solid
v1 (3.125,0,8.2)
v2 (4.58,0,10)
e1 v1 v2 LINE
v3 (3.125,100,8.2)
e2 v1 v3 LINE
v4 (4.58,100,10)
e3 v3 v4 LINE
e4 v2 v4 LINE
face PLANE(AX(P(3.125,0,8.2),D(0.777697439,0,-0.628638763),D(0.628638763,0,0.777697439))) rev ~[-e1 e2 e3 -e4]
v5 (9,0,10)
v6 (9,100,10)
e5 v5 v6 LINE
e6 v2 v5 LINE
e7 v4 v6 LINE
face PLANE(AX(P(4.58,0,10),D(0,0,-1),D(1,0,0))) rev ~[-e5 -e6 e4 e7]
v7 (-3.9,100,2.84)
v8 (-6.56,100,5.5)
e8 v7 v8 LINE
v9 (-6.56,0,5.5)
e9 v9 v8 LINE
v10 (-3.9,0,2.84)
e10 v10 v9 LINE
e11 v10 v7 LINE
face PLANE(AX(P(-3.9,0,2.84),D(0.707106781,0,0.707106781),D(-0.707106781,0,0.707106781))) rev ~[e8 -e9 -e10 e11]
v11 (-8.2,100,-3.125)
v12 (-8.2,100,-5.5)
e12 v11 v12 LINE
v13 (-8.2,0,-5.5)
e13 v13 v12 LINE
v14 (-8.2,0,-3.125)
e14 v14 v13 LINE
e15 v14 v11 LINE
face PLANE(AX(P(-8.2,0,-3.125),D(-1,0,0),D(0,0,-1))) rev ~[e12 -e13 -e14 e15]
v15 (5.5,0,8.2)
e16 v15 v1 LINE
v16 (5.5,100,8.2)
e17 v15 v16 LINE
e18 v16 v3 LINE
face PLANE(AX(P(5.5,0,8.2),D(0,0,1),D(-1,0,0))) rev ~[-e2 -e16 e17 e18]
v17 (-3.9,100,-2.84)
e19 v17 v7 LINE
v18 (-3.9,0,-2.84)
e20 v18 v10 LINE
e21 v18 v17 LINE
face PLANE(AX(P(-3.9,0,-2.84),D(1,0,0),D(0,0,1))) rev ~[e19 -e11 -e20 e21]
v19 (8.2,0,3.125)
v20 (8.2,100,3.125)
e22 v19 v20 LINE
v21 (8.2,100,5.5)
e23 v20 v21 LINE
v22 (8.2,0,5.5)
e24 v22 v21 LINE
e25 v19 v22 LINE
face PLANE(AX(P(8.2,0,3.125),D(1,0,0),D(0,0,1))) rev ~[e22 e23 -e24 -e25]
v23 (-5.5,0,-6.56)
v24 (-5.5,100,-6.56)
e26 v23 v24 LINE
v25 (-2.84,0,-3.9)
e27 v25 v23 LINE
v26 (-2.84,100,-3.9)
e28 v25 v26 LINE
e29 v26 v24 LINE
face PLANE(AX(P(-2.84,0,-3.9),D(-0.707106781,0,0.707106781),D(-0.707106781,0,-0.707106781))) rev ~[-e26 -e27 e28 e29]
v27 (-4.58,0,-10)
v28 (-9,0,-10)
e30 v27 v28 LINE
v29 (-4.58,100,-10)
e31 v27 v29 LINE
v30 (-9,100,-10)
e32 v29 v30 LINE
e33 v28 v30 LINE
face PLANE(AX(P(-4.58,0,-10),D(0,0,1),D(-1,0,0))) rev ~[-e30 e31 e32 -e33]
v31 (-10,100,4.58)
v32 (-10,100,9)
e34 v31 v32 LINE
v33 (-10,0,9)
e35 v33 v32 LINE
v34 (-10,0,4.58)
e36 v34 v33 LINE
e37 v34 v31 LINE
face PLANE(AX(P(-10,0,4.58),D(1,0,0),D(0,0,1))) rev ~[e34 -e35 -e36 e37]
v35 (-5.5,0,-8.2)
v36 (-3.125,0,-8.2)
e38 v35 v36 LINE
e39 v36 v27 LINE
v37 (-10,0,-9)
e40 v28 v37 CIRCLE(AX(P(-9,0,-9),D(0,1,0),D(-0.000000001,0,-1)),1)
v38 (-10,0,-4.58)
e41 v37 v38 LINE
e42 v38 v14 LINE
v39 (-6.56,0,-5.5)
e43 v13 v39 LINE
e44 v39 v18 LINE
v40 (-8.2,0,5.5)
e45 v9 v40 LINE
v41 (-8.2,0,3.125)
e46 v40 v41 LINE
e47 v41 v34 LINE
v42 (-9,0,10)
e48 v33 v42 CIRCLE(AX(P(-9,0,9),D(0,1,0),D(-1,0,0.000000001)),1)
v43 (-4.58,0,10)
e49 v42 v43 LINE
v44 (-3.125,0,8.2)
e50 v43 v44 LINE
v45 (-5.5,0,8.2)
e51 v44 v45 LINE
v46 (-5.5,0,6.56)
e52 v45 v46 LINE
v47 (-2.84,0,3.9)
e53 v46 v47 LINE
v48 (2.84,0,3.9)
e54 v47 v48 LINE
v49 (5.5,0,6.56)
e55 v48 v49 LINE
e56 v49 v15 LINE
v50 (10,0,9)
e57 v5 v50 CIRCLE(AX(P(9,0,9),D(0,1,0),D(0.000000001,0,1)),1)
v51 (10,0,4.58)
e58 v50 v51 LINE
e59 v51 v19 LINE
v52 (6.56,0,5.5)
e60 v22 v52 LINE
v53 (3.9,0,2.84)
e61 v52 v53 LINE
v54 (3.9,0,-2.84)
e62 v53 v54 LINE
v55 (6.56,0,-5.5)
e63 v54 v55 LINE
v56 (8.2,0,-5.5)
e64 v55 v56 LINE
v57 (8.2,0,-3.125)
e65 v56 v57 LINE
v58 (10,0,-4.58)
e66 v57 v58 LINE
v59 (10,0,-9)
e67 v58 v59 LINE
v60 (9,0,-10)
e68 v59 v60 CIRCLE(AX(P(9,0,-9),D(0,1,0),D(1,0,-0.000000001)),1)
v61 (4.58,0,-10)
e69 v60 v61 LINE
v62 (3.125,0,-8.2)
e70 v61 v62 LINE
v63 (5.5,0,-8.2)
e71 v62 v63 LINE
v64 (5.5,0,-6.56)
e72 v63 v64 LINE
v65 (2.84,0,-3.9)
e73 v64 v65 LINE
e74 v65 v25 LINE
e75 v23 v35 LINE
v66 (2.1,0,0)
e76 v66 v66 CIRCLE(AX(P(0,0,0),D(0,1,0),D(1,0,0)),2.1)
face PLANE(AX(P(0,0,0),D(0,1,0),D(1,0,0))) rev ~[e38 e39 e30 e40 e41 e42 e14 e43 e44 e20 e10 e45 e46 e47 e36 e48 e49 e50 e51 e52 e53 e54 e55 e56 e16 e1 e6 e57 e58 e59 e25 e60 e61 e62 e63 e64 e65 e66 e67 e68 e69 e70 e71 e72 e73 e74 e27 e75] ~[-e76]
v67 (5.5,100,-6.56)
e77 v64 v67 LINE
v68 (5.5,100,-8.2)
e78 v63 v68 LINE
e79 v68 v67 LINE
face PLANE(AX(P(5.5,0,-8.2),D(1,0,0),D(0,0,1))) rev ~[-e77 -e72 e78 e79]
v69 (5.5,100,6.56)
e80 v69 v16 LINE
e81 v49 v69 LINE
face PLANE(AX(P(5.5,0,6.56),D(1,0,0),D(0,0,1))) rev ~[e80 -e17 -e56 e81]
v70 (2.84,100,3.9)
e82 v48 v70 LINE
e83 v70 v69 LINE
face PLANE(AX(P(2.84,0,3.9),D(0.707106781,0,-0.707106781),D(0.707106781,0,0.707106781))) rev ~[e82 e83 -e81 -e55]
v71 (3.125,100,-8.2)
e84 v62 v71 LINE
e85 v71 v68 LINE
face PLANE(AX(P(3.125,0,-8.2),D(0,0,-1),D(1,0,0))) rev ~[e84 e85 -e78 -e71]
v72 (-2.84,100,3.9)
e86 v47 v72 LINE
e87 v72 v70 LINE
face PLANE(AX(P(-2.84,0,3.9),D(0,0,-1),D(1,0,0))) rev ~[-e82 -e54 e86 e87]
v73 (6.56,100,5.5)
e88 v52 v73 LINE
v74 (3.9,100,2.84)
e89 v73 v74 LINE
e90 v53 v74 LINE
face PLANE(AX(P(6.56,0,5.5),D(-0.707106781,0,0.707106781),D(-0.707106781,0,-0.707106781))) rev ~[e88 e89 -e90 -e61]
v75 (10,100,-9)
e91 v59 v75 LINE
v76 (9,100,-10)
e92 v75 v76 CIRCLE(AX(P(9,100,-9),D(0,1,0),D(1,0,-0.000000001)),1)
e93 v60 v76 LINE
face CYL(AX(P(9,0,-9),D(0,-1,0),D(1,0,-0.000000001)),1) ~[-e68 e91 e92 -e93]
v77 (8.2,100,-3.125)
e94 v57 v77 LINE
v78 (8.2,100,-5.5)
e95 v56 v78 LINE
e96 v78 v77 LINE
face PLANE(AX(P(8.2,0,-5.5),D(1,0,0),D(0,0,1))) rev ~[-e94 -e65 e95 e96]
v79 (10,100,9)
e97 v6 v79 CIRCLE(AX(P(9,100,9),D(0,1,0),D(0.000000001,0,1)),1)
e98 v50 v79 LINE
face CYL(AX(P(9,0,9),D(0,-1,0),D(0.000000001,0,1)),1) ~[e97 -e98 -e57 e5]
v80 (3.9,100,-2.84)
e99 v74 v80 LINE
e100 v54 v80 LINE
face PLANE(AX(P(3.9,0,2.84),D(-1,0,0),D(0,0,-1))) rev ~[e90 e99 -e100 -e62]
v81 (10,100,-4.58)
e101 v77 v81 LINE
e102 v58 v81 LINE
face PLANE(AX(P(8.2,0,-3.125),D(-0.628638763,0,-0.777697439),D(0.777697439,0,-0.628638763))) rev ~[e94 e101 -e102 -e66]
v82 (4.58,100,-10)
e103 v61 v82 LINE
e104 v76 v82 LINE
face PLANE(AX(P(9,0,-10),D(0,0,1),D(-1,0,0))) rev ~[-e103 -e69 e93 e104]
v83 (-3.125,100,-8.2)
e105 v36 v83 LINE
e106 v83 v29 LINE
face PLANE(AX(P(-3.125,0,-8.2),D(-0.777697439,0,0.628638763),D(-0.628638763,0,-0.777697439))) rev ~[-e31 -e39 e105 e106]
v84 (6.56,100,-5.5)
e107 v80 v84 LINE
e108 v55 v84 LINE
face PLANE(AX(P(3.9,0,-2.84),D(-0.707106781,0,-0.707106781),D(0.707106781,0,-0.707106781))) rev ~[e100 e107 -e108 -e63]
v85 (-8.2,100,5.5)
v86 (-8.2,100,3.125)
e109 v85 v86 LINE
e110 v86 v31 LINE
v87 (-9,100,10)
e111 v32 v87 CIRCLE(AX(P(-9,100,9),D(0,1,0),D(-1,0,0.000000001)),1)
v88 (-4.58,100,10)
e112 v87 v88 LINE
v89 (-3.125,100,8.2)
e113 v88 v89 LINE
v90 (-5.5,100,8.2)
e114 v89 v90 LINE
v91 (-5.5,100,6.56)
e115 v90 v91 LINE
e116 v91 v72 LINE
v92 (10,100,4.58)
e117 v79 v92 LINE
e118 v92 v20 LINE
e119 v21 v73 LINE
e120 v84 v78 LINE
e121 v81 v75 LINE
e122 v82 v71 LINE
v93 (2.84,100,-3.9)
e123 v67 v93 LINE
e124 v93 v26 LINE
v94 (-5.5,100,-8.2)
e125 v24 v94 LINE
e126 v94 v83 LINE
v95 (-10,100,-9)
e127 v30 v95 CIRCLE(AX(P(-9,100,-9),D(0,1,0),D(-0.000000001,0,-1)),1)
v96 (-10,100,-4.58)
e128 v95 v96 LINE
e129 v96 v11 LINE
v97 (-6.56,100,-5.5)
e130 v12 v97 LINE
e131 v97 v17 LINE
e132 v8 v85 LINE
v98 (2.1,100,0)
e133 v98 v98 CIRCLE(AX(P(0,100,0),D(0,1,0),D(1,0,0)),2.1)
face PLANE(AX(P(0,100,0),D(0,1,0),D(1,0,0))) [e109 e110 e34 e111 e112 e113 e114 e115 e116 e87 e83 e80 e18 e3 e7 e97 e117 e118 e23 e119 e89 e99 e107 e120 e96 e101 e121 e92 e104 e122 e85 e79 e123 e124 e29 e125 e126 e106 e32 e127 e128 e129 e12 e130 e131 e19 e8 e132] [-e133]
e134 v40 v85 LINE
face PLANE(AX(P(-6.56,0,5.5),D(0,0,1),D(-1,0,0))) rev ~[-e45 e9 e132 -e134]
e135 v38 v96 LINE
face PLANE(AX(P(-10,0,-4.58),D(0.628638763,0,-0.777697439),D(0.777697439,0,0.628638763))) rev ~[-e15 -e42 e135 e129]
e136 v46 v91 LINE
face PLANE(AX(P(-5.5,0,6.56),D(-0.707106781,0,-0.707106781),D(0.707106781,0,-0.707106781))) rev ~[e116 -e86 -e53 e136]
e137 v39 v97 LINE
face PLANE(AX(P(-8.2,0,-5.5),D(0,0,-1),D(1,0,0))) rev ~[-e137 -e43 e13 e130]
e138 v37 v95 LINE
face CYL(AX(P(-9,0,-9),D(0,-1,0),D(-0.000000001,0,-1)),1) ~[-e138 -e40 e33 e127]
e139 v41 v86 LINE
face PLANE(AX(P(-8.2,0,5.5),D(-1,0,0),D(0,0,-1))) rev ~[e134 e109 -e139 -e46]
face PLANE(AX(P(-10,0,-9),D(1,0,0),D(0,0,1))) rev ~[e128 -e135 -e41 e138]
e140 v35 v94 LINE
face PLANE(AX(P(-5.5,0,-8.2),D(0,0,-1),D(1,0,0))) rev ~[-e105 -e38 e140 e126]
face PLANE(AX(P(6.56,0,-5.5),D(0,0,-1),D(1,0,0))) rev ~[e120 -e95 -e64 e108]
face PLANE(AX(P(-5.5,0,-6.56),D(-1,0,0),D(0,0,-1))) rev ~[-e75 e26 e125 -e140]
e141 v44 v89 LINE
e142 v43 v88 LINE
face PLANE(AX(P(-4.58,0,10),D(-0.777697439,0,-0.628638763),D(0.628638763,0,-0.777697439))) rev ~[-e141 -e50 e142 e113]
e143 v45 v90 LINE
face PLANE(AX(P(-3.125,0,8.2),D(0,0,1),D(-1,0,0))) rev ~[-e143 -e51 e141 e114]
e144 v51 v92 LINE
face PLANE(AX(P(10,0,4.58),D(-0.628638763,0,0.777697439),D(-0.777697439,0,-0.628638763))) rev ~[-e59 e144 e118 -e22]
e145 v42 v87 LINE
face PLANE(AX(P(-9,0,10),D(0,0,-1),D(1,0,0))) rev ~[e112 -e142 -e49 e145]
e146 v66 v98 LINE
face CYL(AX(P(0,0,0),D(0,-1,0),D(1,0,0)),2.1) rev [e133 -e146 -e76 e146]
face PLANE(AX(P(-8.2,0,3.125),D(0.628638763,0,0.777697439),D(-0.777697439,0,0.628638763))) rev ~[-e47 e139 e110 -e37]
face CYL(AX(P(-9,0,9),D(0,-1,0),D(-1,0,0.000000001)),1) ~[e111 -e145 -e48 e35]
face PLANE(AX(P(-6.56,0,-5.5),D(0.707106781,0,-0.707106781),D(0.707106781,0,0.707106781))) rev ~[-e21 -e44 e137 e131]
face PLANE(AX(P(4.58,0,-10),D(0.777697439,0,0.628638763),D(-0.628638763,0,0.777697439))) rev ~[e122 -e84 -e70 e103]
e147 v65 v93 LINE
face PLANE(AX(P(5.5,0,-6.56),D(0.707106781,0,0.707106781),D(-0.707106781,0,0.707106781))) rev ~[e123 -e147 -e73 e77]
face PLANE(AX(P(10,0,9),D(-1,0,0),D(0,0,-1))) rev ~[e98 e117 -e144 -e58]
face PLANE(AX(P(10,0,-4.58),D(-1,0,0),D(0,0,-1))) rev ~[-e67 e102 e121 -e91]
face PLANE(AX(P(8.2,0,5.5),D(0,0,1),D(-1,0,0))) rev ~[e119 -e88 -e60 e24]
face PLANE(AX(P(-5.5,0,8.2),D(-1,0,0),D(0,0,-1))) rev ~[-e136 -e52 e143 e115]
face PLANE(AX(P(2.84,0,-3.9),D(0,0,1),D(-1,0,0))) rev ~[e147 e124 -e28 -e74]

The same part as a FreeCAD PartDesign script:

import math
import FreeCAD as App
import Part
import Sketcher
from FreeCAD import Vector

doc = App.newDocument("Part")
body = doc.addObject("PartDesign::Body", "Body")

sketch1 = body.newObject("Sketcher::SketchObject", "Sketch")
sketch1.AttachmentSupport = (doc.getObject("XZ_Plane"), [""])
sketch1.MapMode = "FlatFace"
sketch1.addGeometry(Part.LineSegment(Vector(-5.5, -8.2, 0), Vector(-3.125, -8.2, 0)), False)
sketch1.addGeometry(Part.LineSegment(Vector(-3.125, -8.2, 0), Vector(-4.58, -10, 0)), False)
sketch1.addGeometry(Part.LineSegment(Vector(-4.58, -10, 0), Vector(-9, -10, 0)), False)
sketch1.addGeometry(Part.ArcOfCircle(Part.Circle(Vector(-9, -9, 0), Vector(0, 0, 1), 1), math.radians(-180), math.radians(-90)), False)
sketch1.addGeometry(Part.LineSegment(Vector(-10, -9, 0), Vector(-10, -4.58, 0)), False)
sketch1.addGeometry(Part.LineSegment(Vector(-10, -4.58, 0), Vector(-8.2, -3.125, 0)), False)
sketch1.addGeometry(Part.LineSegment(Vector(-8.2, -3.125, 0), Vector(-8.2, -5.5, 0)), False)
sketch1.addGeometry(Part.LineSegment(Vector(-8.2, -5.5, 0), Vector(-6.56, -5.5, 0)), False)
sketch1.addGeometry(Part.LineSegment(Vector(-6.56, -5.5, 0), Vector(-3.9, -2.84, 0)), False)
sketch1.addGeometry(Part.LineSegment(Vector(-3.9, -2.84, 0), Vector(-3.9, 2.84, 0)), False)
sketch1.addGeometry(Part.LineSegment(Vector(-3.9, 2.84, 0), Vector(-6.56, 5.5, 0)), False)
sketch1.addGeometry(Part.LineSegment(Vector(-6.56, 5.5, 0), Vector(-8.2, 5.5, 0)), False)
sketch1.addGeometry(Part.LineSegment(Vector(-8.2, 5.5, 0), Vector(-8.2, 3.125, 0)), False)
sketch1.addGeometry(Part.LineSegment(Vector(-8.2, 3.125, 0), Vector(-10, 4.58, 0)), False)
sketch1.addGeometry(Part.LineSegment(Vector(-10, 4.58, 0), Vector(-10, 9, 0)), False)
sketch1.addGeometry(Part.ArcOfCircle(Part.Circle(Vector(-9, 9, 0), Vector(0, 0, 1), 1), math.radians(90), math.radians(180)), False)
sketch1.addGeometry(Part.LineSegment(Vector(-9, 10, 0), Vector(-4.58, 10, 0)), False)
sketch1.addGeometry(Part.LineSegment(Vector(-4.58, 10, 0), Vector(-3.125, 8.2, 0)), False)
sketch1.addGeometry(Part.LineSegment(Vector(-3.125, 8.2, 0), Vector(-5.5, 8.2, 0)), False)
sketch1.addGeometry(Part.LineSegment(Vector(-5.5, 8.2, 0), Vector(-5.5, 6.56, 0)), False)
sketch1.addGeometry(Part.LineSegment(Vector(-5.5, 6.56, 0), Vector(-2.84, 3.9, 0)), False)
sketch1.addGeometry(Part.LineSegment(Vector(-2.84, 3.9, 0), Vector(2.84, 3.9, 0)), False)
sketch1.addGeometry(Part.LineSegment(Vector(2.84, 3.9, 0), Vector(5.5, 6.56, 0)), False)
sketch1.addGeometry(Part.LineSegment(Vector(5.5, 6.56, 0), Vector(5.5, 8.2, 0)), False)
sketch1.addGeometry(Part.LineSegment(Vector(5.5, 8.2, 0), Vector(3.125, 8.2, 0)), False)
sketch1.addGeometry(Part.LineSegment(Vector(3.125, 8.2, 0), Vector(4.58, 10, 0)), False)
sketch1.addGeometry(Part.LineSegment(Vector(4.58, 10, 0), Vector(9, 10, 0)), False)
sketch1.addGeometry(Part.ArcOfCircle(Part.Circle(Vector(9, 9, 0), Vector(0, 0, 1), 1), math.radians(0), math.radians(90)), False)
sketch1.addGeometry(Part.LineSegment(Vector(10, 9, 0), Vector(10, 4.58, 0)), False)
sketch1.addGeometry(Part.LineSegment(Vector(10, 4.58, 0), Vector(8.2, 3.125, 0)), False)
sketch1.addGeometry(Part.LineSegment(Vector(8.2, 3.125, 0), Vector(8.2, 5.5, 0)), False)
sketch1.addGeometry(Part.LineSegment(Vector(8.2, 5.5, 0), Vector(6.56, 5.5, 0)), False)
sketch1.addGeometry(Part.LineSegment(Vector(6.56, 5.5, 0), Vector(3.9, 2.84, 0)), False)
sketch1.addGeometry(Part.LineSegment(Vector(3.9, 2.84, 0), Vector(3.9, -2.84, 0)), False)
sketch1.addGeometry(Part.LineSegment(Vector(3.9, -2.84, 0), Vector(6.56, -5.5, 0)), False)
sketch1.addGeometry(Part.LineSegment(Vector(6.56, -5.5, 0), Vector(8.2, -5.5, 0)), False)
sketch1.addGeometry(Part.LineSegment(Vector(8.2, -5.5, 0), Vector(8.2, -3.125, 0)), False)
sketch1.addGeometry(Part.LineSegment(Vector(8.2, -3.125, 0), Vector(10, -4.58, 0)), False)
sketch1.addGeometry(Part.LineSegment(Vector(10, -4.58, 0), Vector(10, -9, 0)), False)
sketch1.addGeometry(Part.ArcOfCircle(Part.Circle(Vector(9, -9, 0), Vector(0, 0, 1), 1), math.radians(-90), math.radians(0)), False)
sketch1.addGeometry(Part.LineSegment(Vector(9, -10, 0), Vector(4.58, -10, 0)), False)
sketch1.addGeometry(Part.LineSegment(Vector(4.58, -10, 0), Vector(3.125, -8.2, 0)), False)
sketch1.addGeometry(Part.LineSegment(Vector(3.125, -8.2, 0), Vector(5.5, -8.2, 0)), False)
sketch1.addGeometry(Part.LineSegment(Vector(5.5, -8.2, 0), Vector(5.5, -6.56, 0)), False)
sketch1.addGeometry(Part.LineSegment(Vector(5.5, -6.56, 0), Vector(2.84, -3.9, 0)), False)
sketch1.addGeometry(Part.LineSegment(Vector(2.84, -3.9, 0), Vector(-2.84, -3.9, 0)), False)
sketch1.addGeometry(Part.LineSegment(Vector(-2.84, -3.9, 0), Vector(-5.5, -6.56, 0)), False)
sketch1.addGeometry(Part.LineSegment(Vector(-5.5, -6.56, 0), Vector(-5.5, -8.2, 0)), False)
sketch1.addGeometry(Part.Circle(Vector(0, 0, 0), Vector(0, 0, 1), 2.1), False)
sketch1.addConstraint(Sketcher.Constraint("Coincident", 0, 2, 1, 1))
sketch1.addConstraint(Sketcher.Constraint("Coincident", 1, 2, 2, 1))
sketch1.addConstraint(Sketcher.Constraint("Tangent", 2, 2, 3, 2))
sketch1.addConstraint(Sketcher.Constraint("Tangent", 3, 1, 4, 1))
sketch1.addConstraint(Sketcher.Constraint("Coincident", 4, 2, 5, 1))
sketch1.addConstraint(Sketcher.Constraint("Coincident", 5, 2, 6, 1))
sketch1.addConstraint(Sketcher.Constraint("Coincident", 6, 2, 7, 1))
sketch1.addConstraint(Sketcher.Constraint("Coincident", 7, 2, 8, 1))
sketch1.addConstraint(Sketcher.Constraint("Coincident", 8, 2, 9, 1))
sketch1.addConstraint(Sketcher.Constraint("Coincident", 9, 2, 10, 1))
sketch1.addConstraint(Sketcher.Constraint("Coincident", 10, 2, 11, 1))
sketch1.addConstraint(Sketcher.Constraint("Coincident", 11, 2, 12, 1))
sketch1.addConstraint(Sketcher.Constraint("Coincident", 12, 2, 13, 1))
sketch1.addConstraint(Sketcher.Constraint("Coincident", 13, 2, 14, 1))
sketch1.addConstraint(Sketcher.Constraint("Tangent", 14, 2, 15, 2))
sketch1.addConstraint(Sketcher.Constraint("Tangent", 15, 1, 16, 1))
sketch1.addConstraint(Sketcher.Constraint("Coincident", 16, 2, 17, 1))
sketch1.addConstraint(Sketcher.Constraint("Coincident", 17, 2, 18, 1))
sketch1.addConstraint(Sketcher.Constraint("Coincident", 18, 2, 19, 1))
sketch1.addConstraint(Sketcher.Constraint("Coincident", 19, 2, 20, 1))
sketch1.addConstraint(Sketcher.Constraint("Coincident", 20, 2, 21, 1))
sketch1.addConstraint(Sketcher.Constraint("Coincident", 21, 2, 22, 1))
sketch1.addConstraint(Sketcher.Constraint("Coincident", 22, 2, 23, 1))
sketch1.addConstraint(Sketcher.Constraint("Coincident", 23, 2, 24, 1))
sketch1.addConstraint(Sketcher.Constraint("Coincident", 24, 2, 25, 1))
sketch1.addConstraint(Sketcher.Constraint("Coincident", 25, 2, 26, 1))
sketch1.addConstraint(Sketcher.Constraint("Tangent", 26, 2, 27, 2))
sketch1.addConstraint(Sketcher.Constraint("Tangent", 27, 1, 28, 1))
sketch1.addConstraint(Sketcher.Constraint("Coincident", 28, 2, 29, 1))
sketch1.addConstraint(Sketcher.Constraint("Coincident", 29, 2, 30, 1))
sketch1.addConstraint(Sketcher.Constraint("Coincident", 30, 2, 31, 1))
sketch1.addConstraint(Sketcher.Constraint("Coincident", 31, 2, 32, 1))
sketch1.addConstraint(Sketcher.Constraint("Coincident", 32, 2, 33, 1))
sketch1.addConstraint(Sketcher.Constraint("Coincident", 33, 2, 34, 1))
sketch1.addConstraint(Sketcher.Constraint("Coincident", 34, 2, 35, 1))
sketch1.addConstraint(Sketcher.Constraint("Coincident", 35, 2, 36, 1))
sketch1.addConstraint(Sketcher.Constraint("Coincident", 36, 2, 37, 1))
sketch1.addConstraint(Sketcher.Constraint("Coincident", 37, 2, 38, 1))
sketch1.addConstraint(Sketcher.Constraint("Tangent", 38, 2, 39, 2))
sketch1.addConstraint(Sketcher.Constraint("Tangent", 39, 1, 40, 1))
sketch1.addConstraint(Sketcher.Constraint("Coincident", 40, 2, 41, 1))
sketch1.addConstraint(Sketcher.Constraint("Coincident", 41, 2, 42, 1))
sketch1.addConstraint(Sketcher.Constraint("Coincident", 42, 2, 43, 1))
sketch1.addConstraint(Sketcher.Constraint("Coincident", 43, 2, 44, 1))
sketch1.addConstraint(Sketcher.Constraint("Coincident", 44, 2, 45, 1))
sketch1.addConstraint(Sketcher.Constraint("Coincident", 45, 2, 46, 1))
sketch1.addConstraint(Sketcher.Constraint("Coincident", 46, 2, 47, 1))
sketch1.addConstraint(Sketcher.Constraint("Coincident", 47, 2, 0, 1))
sketch1.addConstraint(Sketcher.Constraint("Horizontal", 0))
sketch1.addConstraint(Sketcher.Constraint("Horizontal", 2))
sketch1.addConstraint(Sketcher.Constraint("Vertical", 4))
sketch1.addConstraint(Sketcher.Constraint("Vertical", 6))
sketch1.addConstraint(Sketcher.Constraint("Horizontal", 7))
sketch1.addConstraint(Sketcher.Constraint("Vertical", 9))
sketch1.addConstraint(Sketcher.Constraint("Horizontal", 11))
sketch1.addConstraint(Sketcher.Constraint("Vertical", 12))
sketch1.addConstraint(Sketcher.Constraint("Vertical", 14))
sketch1.addConstraint(Sketcher.Constraint("Horizontal", 16))
sketch1.addConstraint(Sketcher.Constraint("Horizontal", 18))
sketch1.addConstraint(Sketcher.Constraint("Vertical", 19))
sketch1.addConstraint(Sketcher.Constraint("Horizontal", 21))
sketch1.addConstraint(Sketcher.Constraint("Vertical", 23))
sketch1.addConstraint(Sketcher.Constraint("Horizontal", 24))
sketch1.addConstraint(Sketcher.Constraint("Horizontal", 26))
sketch1.addConstraint(Sketcher.Constraint("Vertical", 28))
sketch1.addConstraint(Sketcher.Constraint("Vertical", 30))
sketch1.addConstraint(Sketcher.Constraint("Horizontal", 31))
sketch1.addConstraint(Sketcher.Constraint("Vertical", 33))
sketch1.addConstraint(Sketcher.Constraint("Horizontal", 35))
sketch1.addConstraint(Sketcher.Constraint("Vertical", 36))
sketch1.addConstraint(Sketcher.Constraint("Vertical", 38))
sketch1.addConstraint(Sketcher.Constraint("Horizontal", 40))
sketch1.addConstraint(Sketcher.Constraint("Horizontal", 42))
sketch1.addConstraint(Sketcher.Constraint("Vertical", 43))
sketch1.addConstraint(Sketcher.Constraint("Horizontal", 45))
sketch1.addConstraint(Sketcher.Constraint("Vertical", 47))
sketch1.addConstraint(Sketcher.Constraint("Coincident", 48, 3, -1, 1))
sketch1.addConstraint(Sketcher.Constraint("Equal", 3, 15))
sketch1.addConstraint(Sketcher.Constraint("Equal", 15, 27))
sketch1.addConstraint(Sketcher.Constraint("Equal", 27, 39))
sketch1.addConstraint(Sketcher.Constraint("Symmetric", 3, 3, 27, 3, -1, 1))
sketch1.addConstraint(Sketcher.Constraint("Symmetric", 15, 3, 39, 3, -1, 1))
sketch1.addConstraint(Sketcher.Constraint("Symmetric", 0, 2, 24, 2, -1, 1))
sketch1.addConstraint(Sketcher.Constraint("Symmetric", 5, 2, 29, 2, -1, 1))
sketch1.addConstraint(Sketcher.Constraint("Symmetric", 7, 2, 31, 2, -1, 1))
sketch1.addConstraint(Sketcher.Constraint("Symmetric", 8, 2, 32, 2, -1, 1))
sketch1.addConstraint(Sketcher.Constraint("Symmetric", 10, 2, 34, 2, -1, 1))
sketch1.addConstraint(Sketcher.Constraint("Symmetric", 12, 2, 36, 2, -1, 1))
sketch1.addConstraint(Sketcher.Constraint("Symmetric", 17, 2, 41, 2, -1, 1))
sketch1.addConstraint(Sketcher.Constraint("Symmetric", 19, 2, 43, 2, -1, 1))
sketch1.addConstraint(Sketcher.Constraint("Symmetric", 20, 2, 44, 2, -1, 1))
sketch1.addConstraint(Sketcher.Constraint("Symmetric", 22, 2, 46, 2, -1, 1))
sketch1.addConstraint(Sketcher.Constraint("Symmetric", 15, 3, 27, 3, -2))
sketch1.addConstraint(Sketcher.Constraint("Symmetric", 19, 2, 22, 2, -2))
sketch1.addConstraint(Sketcher.Constraint("Symmetric", 17, 2, 24, 2, -2))
sketch1.addConstraint(Sketcher.Constraint("Symmetric", 12, 2, 29, 2, -2))
sketch1.addConstraint(Sketcher.Constraint("Symmetric", 10, 2, 31, 2, -2))
sketch1.addConstraint(Sketcher.Constraint("Perpendicular", 8, 10))
sketch1.addConstraint(Sketcher.Constraint("Perpendicular", 1, 13))
sketch1.addConstraint(Sketcher.Constraint("Perpendicular", 5, 17))
sketch1.addConstraint(Sketcher.Constraint("Parallel", 10, 20))
sketch1.addConstraint(Sketcher.Constraint("Perpendicular", 20, 22))
sketch1.addConstraint(Sketcher.Constraint("Perpendicular", 13, 25))
sketch1.addConstraint(Sketcher.Constraint("Perpendicular", 17, 29))
sketch1.addConstraint(Sketcher.Constraint("Perpendicular", 32, 34))
sketch1.addConstraint(Sketcher.Constraint("Perpendicular", 25, 37))
sketch1.addConstraint(Sketcher.Constraint("Perpendicular", 29, 41))
sketch1.addConstraint(Sketcher.Constraint("Perpendicular", 44, 46))
sketch1.addConstraint(Sketcher.Constraint("Horizontal", 13, 2, 28, 2))
sketch1.addConstraint(Sketcher.Constraint("Horizontal", 9, 2, 32, 2))
sketch1.addConstraint(Sketcher.Constraint("Equal", 40, 4))
sketch1.addConstraint(Sketcher.Constraint("Equal", 42, 6))
sketch1.addConstraint(Sketcher.Constraint("Equal", 45, 9))
sketch1.addConstraint(Sketcher.Constraint("Equal", 35, 19))
sketch1.addConstraint(Sketcher.Constraint("Equal", 1, 5))
sketch1.addConstraint(Sketcher.Constraint("Equal", 10, 20))
sketch1.addConstraint(Sketcher.Constraint("Radius", 3, 1.0))
sketch1.addConstraint(Sketcher.Constraint("Diameter", 48, 4.2))
sketch1.addConstraint(Sketcher.Constraint("DistanceX", 3, 3, -1, 1, 9.0))
sketch1.addConstraint(Sketcher.Constraint("DistanceX", 2, 2, 2, 1, 4.42))
sketch1.addConstraint(Sketcher.Constraint("DistanceX", 7, 1, 7, 2, 1.64))
sketch1.addConstraint(Sketcher.Constraint("DistanceX", 21, 1, 21, 2, 5.68))
sketch1.addConstraint(Sketcher.Constraint("DistanceY", 0, 2, -1, 1, 8.2))
sketch1.addConstraint(Sketcher.Constraint("DistanceY", 6, 2, -1, 1, 5.5))
sketch1.addConstraint(Sketcher.Constraint("DistanceX", 0, 1, 0, 2, 2.375))
pad1 = body.newObject("PartDesign::Pad", "Pad")
pad1.Profile = sketch1
pad1.Length = 100
pad1.Reversed = True

doc.recompute()
